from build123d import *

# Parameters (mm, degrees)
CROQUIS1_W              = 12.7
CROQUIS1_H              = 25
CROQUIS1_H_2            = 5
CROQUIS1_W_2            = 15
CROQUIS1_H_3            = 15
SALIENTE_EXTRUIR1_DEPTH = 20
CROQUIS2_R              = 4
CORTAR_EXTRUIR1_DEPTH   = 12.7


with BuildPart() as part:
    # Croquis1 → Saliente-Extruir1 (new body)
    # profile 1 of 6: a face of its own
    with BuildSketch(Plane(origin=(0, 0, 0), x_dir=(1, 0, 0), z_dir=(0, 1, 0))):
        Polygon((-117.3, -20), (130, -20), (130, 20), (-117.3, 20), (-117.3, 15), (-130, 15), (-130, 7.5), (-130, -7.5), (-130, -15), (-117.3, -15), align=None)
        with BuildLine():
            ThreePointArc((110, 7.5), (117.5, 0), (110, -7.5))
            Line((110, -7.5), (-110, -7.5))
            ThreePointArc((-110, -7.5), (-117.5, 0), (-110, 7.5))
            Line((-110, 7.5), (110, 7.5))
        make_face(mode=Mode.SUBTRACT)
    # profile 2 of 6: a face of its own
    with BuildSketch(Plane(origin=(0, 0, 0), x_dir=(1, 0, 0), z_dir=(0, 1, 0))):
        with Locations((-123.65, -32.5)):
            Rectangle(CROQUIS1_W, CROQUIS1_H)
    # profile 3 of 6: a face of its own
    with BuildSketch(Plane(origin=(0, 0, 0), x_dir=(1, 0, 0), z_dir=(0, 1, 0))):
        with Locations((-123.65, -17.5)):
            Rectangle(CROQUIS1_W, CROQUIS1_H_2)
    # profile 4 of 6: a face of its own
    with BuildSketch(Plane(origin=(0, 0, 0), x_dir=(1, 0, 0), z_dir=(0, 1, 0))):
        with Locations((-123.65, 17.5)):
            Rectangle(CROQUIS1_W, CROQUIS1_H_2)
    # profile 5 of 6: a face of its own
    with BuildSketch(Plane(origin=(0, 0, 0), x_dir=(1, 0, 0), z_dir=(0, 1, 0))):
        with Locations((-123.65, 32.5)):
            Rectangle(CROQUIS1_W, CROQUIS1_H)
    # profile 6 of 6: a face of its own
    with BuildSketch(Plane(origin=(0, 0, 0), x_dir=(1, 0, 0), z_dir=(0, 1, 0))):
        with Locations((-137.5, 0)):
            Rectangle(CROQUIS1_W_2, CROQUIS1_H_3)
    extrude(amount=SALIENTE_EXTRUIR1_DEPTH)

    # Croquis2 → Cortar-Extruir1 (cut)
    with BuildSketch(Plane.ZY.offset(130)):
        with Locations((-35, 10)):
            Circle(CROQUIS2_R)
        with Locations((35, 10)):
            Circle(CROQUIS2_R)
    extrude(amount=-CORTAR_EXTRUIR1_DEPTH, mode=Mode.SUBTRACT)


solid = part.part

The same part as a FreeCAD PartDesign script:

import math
import FreeCAD as App
import Part
import Sketcher
Q = App.Units.Quantity


def add_polygon(sketch, points):
    """Adds a closed chain of lines whose ends are joined by coincident constraints."""
    first, n = sketch.GeometryCount, len(points)
    for a, b in zip(points, points[1:] + points[:1]):
        sketch.addGeometry(Part.LineSegment(App.Vector(*a, 0), App.Vector(*b, 0)), False)
    for i in range(n):
        sketch.addConstraint(Sketcher.Constraint("Coincident", first + i, 2, first + (i + 1) % n, 1))

doc = App.newDocument("Part")
params = doc.addObject("Spreadsheet::Sheet", "Params")
for row, (alias, value) in enumerate([
    ("sketch1_radius", "7.5 mm"),
    ("sketch1_width", "220 mm"),
    ("sketch1_height", "40 mm"),
    ("sketch1_height2", "25 mm"),
    ("sketch1_width2", "247.3 mm"),
    ("pad1_length", "20 mm"),
    ("sketch2_diameter", "8 mm"),
    ("pocket1_length", "12.7 mm"),
], start=1):
    params.set(f"A{row}", alias)
    params.set(f"B{row}", "=" + value)
    params.setAlias(f"B{row}", alias)

body = doc.addObject("PartDesign::Body", "Body")

sketch1 = body.newObject("Sketcher::SketchObject", "Sketch")
sketch1.AttachmentSupport = (doc.getObject("XZ_Plane"), [""])
sketch1.MapMode = "FlatFace"
add_polygon(sketch1, [(-117.3, 20), (130, 20), (130, -20), (-117.3, -20), (-117.3, -45), (-130, -45), (-130, -7.5), (-145, -7.5), (-145, 7.5), (-130, 7.5), (-130, 45), (-117.3, 45)])
sketch1.addGeometry(Part.LineSegment(App.Vector(-110, -7.5, 0), App.Vector(110, -7.5, 0)), False)
sketch1.addGeometry(Part.ArcOfCircle(Part.Circle(App.Vector(110, 0, 0), App.Vector(0, 0, 1), 7.5), math.radians(-90), math.radians(90)), False)
sketch1.addGeometry(Part.LineSegment(App.Vector(110, 7.5, 0), App.Vector(-110, 7.5, 0)), False)
sketch1.addGeometry(Part.ArcOfCircle(Part.Circle(App.Vector(-110, 0, 0), App.Vector(0, 0, 1), 7.5), math.radians(90), math.radians(270)), False)
sketch1.addConstraint(Sketcher.Constraint("Tangent", 12, 2, 13, 1))
sketch1.addConstraint(Sketcher.Constraint("Tangent", 13, 2, 14, 1))
sketch1.addConstraint(Sketcher.Constraint("Tangent", 14, 2, 15, 1))
sketch1.addConstraint(Sketcher.Constraint("Tangent", 15, 2, 12, 1))
sketch1.addConstraint(Sketcher.Constraint("Horizontal", 0))
sketch1.addConstraint(Sketcher.Constraint("Vertical", 1))
sketch1.addConstraint(Sketcher.Constraint("Horizontal", 2))
sketch1.addConstraint(Sketcher.Constraint("Vertical", 3))
sketch1.addConstraint(Sketcher.Constraint("Horizontal", 4))
sketch1.addConstraint(Sketcher.Constraint("Vertical", 5))
sketch1.addConstraint(Sketcher.Constraint("Horizontal", 6))
sketch1.addConstraint(Sketcher.Constraint("Vertical", 7))
sketch1.addConstraint(Sketcher.Constraint("Horizontal", 8))
sketch1.addConstraint(Sketcher.Constraint("Vertical", 9))
sketch1.addConstraint(Sketcher.Constraint("Horizontal", 10))
sketch1.addConstraint(Sketcher.Constraint("Vertical", 11))
sketch1.addConstraint(Sketcher.Constraint("Horizontal", 12))
sketch1.addConstraint(Sketcher.Constraint("Horizontal", 14))
sketch1.addConstraint(Sketcher.Constraint("Symmetric", 13, 3, 15, 3, -1, 1))
sketch1.addConstraint(Sketcher.Constraint("Symmetric", 5, 2, 8, 2, -1))
sketch1.addConstraint(Sketcher.Constraint("Symmetric", 3, 2, 10, 2, -1))
sketch1.addConstraint(Sketcher.Constraint("Horizontal", 6, 2, 12, 2))
sketch1.addConstraint(Sketcher.Constraint("Equal", 8, 7))
sketch1.addConstraint(Sketcher.Constraint("Equal", 3, 11))
sketch1.addConstraint(Sketcher.Constraint("Radius", 13, Q("7.5 mm")))
sketch1.addConstraint(Sketcher.Constraint("DistanceX", 12, 1, 12, 2, Q("220 mm")))
sketch1.addConstraint(Sketcher.Constraint("DistanceY", 1, 2, 1, 1, Q("40 mm")))
sketch1.addConstraint(Sketcher.Constraint("DistanceY", 3, 2, 3, 1, Q("25 mm")))
sketch1.addConstraint(Sketcher.Constraint("DistanceX", 0, 1, 0, 2, Q("247.3 mm")))
sketch1.addConstraint(Sketcher.Constraint("DistanceX", 4, 2, 4, 1, Q("12.7 mm")))
sketch1.addConstraint(Sketcher.Constraint("DistanceX", -1, 1, 0, 2, Q("130 mm")))
sketch1.setExpression("Constraints[36]", "Params.sketch1_radius")
sketch1.setExpression("Constraints[37]", "Params.sketch1_width")
sketch1.setExpression("Constraints[38]", "Params.sketch1_height")
sketch1.setExpression("Constraints[39]", "Params.sketch1_height2")
sketch1.setExpression("Constraints[40]", "Params.sketch1_width2")
pad1 = body.newObject("PartDesign::Pad", "Pad")
pad1.Profile = sketch1
pad1.setExpression("Length", "Params.pad1_length")
pad1.Reversed = True

sketch2 = body.newObject("Sketcher::SketchObject", "Sketch001")
sketch2.AttachmentSupport = (doc.getObject("YZ_Plane"), [""])
sketch2.MapMode = "FlatFace"
sketch2.AttachmentOffset = App.Placement(App.Vector(0, 0, -130), App.Rotation())
sketch2.addGeometry(Part.Circle(App.Vector(10, -35, 0), App.Vector(0, 0, 1), 4), False)
sketch2.addGeometry(Part.Circle(App.Vector(10, 35, 0), App.Vector(0, 0, 1), 4), False)
sketch2.addConstraint(Sketcher.Constraint("Equal", 0, 1))
sketch2.addConstraint(Sketcher.Constraint("Symmetric", 0, 3, 1, 3, -1))
sketch2.addConstraint(Sketcher.Constraint("Diameter", 0, Q("8 mm")))
sketch2.addConstraint(Sketcher.Constraint("DistanceX", -1, 1, 0, 3, Q("10 mm")))
sketch2.addConstraint(Sketcher.Constraint("DistanceY", 0, 3, -1, 1, Q("35 mm")))
sketch2.setExpression("Constraints[2]", "Params.sketch2_diameter")
pocket1 = body.newObject("PartDesign::Pocket", "Pocket")
pocket1.Profile = sketch2
pocket1.setExpression("Length", "Params.pocket1_length")
pocket1.Reversed = True

doc.recompute()
